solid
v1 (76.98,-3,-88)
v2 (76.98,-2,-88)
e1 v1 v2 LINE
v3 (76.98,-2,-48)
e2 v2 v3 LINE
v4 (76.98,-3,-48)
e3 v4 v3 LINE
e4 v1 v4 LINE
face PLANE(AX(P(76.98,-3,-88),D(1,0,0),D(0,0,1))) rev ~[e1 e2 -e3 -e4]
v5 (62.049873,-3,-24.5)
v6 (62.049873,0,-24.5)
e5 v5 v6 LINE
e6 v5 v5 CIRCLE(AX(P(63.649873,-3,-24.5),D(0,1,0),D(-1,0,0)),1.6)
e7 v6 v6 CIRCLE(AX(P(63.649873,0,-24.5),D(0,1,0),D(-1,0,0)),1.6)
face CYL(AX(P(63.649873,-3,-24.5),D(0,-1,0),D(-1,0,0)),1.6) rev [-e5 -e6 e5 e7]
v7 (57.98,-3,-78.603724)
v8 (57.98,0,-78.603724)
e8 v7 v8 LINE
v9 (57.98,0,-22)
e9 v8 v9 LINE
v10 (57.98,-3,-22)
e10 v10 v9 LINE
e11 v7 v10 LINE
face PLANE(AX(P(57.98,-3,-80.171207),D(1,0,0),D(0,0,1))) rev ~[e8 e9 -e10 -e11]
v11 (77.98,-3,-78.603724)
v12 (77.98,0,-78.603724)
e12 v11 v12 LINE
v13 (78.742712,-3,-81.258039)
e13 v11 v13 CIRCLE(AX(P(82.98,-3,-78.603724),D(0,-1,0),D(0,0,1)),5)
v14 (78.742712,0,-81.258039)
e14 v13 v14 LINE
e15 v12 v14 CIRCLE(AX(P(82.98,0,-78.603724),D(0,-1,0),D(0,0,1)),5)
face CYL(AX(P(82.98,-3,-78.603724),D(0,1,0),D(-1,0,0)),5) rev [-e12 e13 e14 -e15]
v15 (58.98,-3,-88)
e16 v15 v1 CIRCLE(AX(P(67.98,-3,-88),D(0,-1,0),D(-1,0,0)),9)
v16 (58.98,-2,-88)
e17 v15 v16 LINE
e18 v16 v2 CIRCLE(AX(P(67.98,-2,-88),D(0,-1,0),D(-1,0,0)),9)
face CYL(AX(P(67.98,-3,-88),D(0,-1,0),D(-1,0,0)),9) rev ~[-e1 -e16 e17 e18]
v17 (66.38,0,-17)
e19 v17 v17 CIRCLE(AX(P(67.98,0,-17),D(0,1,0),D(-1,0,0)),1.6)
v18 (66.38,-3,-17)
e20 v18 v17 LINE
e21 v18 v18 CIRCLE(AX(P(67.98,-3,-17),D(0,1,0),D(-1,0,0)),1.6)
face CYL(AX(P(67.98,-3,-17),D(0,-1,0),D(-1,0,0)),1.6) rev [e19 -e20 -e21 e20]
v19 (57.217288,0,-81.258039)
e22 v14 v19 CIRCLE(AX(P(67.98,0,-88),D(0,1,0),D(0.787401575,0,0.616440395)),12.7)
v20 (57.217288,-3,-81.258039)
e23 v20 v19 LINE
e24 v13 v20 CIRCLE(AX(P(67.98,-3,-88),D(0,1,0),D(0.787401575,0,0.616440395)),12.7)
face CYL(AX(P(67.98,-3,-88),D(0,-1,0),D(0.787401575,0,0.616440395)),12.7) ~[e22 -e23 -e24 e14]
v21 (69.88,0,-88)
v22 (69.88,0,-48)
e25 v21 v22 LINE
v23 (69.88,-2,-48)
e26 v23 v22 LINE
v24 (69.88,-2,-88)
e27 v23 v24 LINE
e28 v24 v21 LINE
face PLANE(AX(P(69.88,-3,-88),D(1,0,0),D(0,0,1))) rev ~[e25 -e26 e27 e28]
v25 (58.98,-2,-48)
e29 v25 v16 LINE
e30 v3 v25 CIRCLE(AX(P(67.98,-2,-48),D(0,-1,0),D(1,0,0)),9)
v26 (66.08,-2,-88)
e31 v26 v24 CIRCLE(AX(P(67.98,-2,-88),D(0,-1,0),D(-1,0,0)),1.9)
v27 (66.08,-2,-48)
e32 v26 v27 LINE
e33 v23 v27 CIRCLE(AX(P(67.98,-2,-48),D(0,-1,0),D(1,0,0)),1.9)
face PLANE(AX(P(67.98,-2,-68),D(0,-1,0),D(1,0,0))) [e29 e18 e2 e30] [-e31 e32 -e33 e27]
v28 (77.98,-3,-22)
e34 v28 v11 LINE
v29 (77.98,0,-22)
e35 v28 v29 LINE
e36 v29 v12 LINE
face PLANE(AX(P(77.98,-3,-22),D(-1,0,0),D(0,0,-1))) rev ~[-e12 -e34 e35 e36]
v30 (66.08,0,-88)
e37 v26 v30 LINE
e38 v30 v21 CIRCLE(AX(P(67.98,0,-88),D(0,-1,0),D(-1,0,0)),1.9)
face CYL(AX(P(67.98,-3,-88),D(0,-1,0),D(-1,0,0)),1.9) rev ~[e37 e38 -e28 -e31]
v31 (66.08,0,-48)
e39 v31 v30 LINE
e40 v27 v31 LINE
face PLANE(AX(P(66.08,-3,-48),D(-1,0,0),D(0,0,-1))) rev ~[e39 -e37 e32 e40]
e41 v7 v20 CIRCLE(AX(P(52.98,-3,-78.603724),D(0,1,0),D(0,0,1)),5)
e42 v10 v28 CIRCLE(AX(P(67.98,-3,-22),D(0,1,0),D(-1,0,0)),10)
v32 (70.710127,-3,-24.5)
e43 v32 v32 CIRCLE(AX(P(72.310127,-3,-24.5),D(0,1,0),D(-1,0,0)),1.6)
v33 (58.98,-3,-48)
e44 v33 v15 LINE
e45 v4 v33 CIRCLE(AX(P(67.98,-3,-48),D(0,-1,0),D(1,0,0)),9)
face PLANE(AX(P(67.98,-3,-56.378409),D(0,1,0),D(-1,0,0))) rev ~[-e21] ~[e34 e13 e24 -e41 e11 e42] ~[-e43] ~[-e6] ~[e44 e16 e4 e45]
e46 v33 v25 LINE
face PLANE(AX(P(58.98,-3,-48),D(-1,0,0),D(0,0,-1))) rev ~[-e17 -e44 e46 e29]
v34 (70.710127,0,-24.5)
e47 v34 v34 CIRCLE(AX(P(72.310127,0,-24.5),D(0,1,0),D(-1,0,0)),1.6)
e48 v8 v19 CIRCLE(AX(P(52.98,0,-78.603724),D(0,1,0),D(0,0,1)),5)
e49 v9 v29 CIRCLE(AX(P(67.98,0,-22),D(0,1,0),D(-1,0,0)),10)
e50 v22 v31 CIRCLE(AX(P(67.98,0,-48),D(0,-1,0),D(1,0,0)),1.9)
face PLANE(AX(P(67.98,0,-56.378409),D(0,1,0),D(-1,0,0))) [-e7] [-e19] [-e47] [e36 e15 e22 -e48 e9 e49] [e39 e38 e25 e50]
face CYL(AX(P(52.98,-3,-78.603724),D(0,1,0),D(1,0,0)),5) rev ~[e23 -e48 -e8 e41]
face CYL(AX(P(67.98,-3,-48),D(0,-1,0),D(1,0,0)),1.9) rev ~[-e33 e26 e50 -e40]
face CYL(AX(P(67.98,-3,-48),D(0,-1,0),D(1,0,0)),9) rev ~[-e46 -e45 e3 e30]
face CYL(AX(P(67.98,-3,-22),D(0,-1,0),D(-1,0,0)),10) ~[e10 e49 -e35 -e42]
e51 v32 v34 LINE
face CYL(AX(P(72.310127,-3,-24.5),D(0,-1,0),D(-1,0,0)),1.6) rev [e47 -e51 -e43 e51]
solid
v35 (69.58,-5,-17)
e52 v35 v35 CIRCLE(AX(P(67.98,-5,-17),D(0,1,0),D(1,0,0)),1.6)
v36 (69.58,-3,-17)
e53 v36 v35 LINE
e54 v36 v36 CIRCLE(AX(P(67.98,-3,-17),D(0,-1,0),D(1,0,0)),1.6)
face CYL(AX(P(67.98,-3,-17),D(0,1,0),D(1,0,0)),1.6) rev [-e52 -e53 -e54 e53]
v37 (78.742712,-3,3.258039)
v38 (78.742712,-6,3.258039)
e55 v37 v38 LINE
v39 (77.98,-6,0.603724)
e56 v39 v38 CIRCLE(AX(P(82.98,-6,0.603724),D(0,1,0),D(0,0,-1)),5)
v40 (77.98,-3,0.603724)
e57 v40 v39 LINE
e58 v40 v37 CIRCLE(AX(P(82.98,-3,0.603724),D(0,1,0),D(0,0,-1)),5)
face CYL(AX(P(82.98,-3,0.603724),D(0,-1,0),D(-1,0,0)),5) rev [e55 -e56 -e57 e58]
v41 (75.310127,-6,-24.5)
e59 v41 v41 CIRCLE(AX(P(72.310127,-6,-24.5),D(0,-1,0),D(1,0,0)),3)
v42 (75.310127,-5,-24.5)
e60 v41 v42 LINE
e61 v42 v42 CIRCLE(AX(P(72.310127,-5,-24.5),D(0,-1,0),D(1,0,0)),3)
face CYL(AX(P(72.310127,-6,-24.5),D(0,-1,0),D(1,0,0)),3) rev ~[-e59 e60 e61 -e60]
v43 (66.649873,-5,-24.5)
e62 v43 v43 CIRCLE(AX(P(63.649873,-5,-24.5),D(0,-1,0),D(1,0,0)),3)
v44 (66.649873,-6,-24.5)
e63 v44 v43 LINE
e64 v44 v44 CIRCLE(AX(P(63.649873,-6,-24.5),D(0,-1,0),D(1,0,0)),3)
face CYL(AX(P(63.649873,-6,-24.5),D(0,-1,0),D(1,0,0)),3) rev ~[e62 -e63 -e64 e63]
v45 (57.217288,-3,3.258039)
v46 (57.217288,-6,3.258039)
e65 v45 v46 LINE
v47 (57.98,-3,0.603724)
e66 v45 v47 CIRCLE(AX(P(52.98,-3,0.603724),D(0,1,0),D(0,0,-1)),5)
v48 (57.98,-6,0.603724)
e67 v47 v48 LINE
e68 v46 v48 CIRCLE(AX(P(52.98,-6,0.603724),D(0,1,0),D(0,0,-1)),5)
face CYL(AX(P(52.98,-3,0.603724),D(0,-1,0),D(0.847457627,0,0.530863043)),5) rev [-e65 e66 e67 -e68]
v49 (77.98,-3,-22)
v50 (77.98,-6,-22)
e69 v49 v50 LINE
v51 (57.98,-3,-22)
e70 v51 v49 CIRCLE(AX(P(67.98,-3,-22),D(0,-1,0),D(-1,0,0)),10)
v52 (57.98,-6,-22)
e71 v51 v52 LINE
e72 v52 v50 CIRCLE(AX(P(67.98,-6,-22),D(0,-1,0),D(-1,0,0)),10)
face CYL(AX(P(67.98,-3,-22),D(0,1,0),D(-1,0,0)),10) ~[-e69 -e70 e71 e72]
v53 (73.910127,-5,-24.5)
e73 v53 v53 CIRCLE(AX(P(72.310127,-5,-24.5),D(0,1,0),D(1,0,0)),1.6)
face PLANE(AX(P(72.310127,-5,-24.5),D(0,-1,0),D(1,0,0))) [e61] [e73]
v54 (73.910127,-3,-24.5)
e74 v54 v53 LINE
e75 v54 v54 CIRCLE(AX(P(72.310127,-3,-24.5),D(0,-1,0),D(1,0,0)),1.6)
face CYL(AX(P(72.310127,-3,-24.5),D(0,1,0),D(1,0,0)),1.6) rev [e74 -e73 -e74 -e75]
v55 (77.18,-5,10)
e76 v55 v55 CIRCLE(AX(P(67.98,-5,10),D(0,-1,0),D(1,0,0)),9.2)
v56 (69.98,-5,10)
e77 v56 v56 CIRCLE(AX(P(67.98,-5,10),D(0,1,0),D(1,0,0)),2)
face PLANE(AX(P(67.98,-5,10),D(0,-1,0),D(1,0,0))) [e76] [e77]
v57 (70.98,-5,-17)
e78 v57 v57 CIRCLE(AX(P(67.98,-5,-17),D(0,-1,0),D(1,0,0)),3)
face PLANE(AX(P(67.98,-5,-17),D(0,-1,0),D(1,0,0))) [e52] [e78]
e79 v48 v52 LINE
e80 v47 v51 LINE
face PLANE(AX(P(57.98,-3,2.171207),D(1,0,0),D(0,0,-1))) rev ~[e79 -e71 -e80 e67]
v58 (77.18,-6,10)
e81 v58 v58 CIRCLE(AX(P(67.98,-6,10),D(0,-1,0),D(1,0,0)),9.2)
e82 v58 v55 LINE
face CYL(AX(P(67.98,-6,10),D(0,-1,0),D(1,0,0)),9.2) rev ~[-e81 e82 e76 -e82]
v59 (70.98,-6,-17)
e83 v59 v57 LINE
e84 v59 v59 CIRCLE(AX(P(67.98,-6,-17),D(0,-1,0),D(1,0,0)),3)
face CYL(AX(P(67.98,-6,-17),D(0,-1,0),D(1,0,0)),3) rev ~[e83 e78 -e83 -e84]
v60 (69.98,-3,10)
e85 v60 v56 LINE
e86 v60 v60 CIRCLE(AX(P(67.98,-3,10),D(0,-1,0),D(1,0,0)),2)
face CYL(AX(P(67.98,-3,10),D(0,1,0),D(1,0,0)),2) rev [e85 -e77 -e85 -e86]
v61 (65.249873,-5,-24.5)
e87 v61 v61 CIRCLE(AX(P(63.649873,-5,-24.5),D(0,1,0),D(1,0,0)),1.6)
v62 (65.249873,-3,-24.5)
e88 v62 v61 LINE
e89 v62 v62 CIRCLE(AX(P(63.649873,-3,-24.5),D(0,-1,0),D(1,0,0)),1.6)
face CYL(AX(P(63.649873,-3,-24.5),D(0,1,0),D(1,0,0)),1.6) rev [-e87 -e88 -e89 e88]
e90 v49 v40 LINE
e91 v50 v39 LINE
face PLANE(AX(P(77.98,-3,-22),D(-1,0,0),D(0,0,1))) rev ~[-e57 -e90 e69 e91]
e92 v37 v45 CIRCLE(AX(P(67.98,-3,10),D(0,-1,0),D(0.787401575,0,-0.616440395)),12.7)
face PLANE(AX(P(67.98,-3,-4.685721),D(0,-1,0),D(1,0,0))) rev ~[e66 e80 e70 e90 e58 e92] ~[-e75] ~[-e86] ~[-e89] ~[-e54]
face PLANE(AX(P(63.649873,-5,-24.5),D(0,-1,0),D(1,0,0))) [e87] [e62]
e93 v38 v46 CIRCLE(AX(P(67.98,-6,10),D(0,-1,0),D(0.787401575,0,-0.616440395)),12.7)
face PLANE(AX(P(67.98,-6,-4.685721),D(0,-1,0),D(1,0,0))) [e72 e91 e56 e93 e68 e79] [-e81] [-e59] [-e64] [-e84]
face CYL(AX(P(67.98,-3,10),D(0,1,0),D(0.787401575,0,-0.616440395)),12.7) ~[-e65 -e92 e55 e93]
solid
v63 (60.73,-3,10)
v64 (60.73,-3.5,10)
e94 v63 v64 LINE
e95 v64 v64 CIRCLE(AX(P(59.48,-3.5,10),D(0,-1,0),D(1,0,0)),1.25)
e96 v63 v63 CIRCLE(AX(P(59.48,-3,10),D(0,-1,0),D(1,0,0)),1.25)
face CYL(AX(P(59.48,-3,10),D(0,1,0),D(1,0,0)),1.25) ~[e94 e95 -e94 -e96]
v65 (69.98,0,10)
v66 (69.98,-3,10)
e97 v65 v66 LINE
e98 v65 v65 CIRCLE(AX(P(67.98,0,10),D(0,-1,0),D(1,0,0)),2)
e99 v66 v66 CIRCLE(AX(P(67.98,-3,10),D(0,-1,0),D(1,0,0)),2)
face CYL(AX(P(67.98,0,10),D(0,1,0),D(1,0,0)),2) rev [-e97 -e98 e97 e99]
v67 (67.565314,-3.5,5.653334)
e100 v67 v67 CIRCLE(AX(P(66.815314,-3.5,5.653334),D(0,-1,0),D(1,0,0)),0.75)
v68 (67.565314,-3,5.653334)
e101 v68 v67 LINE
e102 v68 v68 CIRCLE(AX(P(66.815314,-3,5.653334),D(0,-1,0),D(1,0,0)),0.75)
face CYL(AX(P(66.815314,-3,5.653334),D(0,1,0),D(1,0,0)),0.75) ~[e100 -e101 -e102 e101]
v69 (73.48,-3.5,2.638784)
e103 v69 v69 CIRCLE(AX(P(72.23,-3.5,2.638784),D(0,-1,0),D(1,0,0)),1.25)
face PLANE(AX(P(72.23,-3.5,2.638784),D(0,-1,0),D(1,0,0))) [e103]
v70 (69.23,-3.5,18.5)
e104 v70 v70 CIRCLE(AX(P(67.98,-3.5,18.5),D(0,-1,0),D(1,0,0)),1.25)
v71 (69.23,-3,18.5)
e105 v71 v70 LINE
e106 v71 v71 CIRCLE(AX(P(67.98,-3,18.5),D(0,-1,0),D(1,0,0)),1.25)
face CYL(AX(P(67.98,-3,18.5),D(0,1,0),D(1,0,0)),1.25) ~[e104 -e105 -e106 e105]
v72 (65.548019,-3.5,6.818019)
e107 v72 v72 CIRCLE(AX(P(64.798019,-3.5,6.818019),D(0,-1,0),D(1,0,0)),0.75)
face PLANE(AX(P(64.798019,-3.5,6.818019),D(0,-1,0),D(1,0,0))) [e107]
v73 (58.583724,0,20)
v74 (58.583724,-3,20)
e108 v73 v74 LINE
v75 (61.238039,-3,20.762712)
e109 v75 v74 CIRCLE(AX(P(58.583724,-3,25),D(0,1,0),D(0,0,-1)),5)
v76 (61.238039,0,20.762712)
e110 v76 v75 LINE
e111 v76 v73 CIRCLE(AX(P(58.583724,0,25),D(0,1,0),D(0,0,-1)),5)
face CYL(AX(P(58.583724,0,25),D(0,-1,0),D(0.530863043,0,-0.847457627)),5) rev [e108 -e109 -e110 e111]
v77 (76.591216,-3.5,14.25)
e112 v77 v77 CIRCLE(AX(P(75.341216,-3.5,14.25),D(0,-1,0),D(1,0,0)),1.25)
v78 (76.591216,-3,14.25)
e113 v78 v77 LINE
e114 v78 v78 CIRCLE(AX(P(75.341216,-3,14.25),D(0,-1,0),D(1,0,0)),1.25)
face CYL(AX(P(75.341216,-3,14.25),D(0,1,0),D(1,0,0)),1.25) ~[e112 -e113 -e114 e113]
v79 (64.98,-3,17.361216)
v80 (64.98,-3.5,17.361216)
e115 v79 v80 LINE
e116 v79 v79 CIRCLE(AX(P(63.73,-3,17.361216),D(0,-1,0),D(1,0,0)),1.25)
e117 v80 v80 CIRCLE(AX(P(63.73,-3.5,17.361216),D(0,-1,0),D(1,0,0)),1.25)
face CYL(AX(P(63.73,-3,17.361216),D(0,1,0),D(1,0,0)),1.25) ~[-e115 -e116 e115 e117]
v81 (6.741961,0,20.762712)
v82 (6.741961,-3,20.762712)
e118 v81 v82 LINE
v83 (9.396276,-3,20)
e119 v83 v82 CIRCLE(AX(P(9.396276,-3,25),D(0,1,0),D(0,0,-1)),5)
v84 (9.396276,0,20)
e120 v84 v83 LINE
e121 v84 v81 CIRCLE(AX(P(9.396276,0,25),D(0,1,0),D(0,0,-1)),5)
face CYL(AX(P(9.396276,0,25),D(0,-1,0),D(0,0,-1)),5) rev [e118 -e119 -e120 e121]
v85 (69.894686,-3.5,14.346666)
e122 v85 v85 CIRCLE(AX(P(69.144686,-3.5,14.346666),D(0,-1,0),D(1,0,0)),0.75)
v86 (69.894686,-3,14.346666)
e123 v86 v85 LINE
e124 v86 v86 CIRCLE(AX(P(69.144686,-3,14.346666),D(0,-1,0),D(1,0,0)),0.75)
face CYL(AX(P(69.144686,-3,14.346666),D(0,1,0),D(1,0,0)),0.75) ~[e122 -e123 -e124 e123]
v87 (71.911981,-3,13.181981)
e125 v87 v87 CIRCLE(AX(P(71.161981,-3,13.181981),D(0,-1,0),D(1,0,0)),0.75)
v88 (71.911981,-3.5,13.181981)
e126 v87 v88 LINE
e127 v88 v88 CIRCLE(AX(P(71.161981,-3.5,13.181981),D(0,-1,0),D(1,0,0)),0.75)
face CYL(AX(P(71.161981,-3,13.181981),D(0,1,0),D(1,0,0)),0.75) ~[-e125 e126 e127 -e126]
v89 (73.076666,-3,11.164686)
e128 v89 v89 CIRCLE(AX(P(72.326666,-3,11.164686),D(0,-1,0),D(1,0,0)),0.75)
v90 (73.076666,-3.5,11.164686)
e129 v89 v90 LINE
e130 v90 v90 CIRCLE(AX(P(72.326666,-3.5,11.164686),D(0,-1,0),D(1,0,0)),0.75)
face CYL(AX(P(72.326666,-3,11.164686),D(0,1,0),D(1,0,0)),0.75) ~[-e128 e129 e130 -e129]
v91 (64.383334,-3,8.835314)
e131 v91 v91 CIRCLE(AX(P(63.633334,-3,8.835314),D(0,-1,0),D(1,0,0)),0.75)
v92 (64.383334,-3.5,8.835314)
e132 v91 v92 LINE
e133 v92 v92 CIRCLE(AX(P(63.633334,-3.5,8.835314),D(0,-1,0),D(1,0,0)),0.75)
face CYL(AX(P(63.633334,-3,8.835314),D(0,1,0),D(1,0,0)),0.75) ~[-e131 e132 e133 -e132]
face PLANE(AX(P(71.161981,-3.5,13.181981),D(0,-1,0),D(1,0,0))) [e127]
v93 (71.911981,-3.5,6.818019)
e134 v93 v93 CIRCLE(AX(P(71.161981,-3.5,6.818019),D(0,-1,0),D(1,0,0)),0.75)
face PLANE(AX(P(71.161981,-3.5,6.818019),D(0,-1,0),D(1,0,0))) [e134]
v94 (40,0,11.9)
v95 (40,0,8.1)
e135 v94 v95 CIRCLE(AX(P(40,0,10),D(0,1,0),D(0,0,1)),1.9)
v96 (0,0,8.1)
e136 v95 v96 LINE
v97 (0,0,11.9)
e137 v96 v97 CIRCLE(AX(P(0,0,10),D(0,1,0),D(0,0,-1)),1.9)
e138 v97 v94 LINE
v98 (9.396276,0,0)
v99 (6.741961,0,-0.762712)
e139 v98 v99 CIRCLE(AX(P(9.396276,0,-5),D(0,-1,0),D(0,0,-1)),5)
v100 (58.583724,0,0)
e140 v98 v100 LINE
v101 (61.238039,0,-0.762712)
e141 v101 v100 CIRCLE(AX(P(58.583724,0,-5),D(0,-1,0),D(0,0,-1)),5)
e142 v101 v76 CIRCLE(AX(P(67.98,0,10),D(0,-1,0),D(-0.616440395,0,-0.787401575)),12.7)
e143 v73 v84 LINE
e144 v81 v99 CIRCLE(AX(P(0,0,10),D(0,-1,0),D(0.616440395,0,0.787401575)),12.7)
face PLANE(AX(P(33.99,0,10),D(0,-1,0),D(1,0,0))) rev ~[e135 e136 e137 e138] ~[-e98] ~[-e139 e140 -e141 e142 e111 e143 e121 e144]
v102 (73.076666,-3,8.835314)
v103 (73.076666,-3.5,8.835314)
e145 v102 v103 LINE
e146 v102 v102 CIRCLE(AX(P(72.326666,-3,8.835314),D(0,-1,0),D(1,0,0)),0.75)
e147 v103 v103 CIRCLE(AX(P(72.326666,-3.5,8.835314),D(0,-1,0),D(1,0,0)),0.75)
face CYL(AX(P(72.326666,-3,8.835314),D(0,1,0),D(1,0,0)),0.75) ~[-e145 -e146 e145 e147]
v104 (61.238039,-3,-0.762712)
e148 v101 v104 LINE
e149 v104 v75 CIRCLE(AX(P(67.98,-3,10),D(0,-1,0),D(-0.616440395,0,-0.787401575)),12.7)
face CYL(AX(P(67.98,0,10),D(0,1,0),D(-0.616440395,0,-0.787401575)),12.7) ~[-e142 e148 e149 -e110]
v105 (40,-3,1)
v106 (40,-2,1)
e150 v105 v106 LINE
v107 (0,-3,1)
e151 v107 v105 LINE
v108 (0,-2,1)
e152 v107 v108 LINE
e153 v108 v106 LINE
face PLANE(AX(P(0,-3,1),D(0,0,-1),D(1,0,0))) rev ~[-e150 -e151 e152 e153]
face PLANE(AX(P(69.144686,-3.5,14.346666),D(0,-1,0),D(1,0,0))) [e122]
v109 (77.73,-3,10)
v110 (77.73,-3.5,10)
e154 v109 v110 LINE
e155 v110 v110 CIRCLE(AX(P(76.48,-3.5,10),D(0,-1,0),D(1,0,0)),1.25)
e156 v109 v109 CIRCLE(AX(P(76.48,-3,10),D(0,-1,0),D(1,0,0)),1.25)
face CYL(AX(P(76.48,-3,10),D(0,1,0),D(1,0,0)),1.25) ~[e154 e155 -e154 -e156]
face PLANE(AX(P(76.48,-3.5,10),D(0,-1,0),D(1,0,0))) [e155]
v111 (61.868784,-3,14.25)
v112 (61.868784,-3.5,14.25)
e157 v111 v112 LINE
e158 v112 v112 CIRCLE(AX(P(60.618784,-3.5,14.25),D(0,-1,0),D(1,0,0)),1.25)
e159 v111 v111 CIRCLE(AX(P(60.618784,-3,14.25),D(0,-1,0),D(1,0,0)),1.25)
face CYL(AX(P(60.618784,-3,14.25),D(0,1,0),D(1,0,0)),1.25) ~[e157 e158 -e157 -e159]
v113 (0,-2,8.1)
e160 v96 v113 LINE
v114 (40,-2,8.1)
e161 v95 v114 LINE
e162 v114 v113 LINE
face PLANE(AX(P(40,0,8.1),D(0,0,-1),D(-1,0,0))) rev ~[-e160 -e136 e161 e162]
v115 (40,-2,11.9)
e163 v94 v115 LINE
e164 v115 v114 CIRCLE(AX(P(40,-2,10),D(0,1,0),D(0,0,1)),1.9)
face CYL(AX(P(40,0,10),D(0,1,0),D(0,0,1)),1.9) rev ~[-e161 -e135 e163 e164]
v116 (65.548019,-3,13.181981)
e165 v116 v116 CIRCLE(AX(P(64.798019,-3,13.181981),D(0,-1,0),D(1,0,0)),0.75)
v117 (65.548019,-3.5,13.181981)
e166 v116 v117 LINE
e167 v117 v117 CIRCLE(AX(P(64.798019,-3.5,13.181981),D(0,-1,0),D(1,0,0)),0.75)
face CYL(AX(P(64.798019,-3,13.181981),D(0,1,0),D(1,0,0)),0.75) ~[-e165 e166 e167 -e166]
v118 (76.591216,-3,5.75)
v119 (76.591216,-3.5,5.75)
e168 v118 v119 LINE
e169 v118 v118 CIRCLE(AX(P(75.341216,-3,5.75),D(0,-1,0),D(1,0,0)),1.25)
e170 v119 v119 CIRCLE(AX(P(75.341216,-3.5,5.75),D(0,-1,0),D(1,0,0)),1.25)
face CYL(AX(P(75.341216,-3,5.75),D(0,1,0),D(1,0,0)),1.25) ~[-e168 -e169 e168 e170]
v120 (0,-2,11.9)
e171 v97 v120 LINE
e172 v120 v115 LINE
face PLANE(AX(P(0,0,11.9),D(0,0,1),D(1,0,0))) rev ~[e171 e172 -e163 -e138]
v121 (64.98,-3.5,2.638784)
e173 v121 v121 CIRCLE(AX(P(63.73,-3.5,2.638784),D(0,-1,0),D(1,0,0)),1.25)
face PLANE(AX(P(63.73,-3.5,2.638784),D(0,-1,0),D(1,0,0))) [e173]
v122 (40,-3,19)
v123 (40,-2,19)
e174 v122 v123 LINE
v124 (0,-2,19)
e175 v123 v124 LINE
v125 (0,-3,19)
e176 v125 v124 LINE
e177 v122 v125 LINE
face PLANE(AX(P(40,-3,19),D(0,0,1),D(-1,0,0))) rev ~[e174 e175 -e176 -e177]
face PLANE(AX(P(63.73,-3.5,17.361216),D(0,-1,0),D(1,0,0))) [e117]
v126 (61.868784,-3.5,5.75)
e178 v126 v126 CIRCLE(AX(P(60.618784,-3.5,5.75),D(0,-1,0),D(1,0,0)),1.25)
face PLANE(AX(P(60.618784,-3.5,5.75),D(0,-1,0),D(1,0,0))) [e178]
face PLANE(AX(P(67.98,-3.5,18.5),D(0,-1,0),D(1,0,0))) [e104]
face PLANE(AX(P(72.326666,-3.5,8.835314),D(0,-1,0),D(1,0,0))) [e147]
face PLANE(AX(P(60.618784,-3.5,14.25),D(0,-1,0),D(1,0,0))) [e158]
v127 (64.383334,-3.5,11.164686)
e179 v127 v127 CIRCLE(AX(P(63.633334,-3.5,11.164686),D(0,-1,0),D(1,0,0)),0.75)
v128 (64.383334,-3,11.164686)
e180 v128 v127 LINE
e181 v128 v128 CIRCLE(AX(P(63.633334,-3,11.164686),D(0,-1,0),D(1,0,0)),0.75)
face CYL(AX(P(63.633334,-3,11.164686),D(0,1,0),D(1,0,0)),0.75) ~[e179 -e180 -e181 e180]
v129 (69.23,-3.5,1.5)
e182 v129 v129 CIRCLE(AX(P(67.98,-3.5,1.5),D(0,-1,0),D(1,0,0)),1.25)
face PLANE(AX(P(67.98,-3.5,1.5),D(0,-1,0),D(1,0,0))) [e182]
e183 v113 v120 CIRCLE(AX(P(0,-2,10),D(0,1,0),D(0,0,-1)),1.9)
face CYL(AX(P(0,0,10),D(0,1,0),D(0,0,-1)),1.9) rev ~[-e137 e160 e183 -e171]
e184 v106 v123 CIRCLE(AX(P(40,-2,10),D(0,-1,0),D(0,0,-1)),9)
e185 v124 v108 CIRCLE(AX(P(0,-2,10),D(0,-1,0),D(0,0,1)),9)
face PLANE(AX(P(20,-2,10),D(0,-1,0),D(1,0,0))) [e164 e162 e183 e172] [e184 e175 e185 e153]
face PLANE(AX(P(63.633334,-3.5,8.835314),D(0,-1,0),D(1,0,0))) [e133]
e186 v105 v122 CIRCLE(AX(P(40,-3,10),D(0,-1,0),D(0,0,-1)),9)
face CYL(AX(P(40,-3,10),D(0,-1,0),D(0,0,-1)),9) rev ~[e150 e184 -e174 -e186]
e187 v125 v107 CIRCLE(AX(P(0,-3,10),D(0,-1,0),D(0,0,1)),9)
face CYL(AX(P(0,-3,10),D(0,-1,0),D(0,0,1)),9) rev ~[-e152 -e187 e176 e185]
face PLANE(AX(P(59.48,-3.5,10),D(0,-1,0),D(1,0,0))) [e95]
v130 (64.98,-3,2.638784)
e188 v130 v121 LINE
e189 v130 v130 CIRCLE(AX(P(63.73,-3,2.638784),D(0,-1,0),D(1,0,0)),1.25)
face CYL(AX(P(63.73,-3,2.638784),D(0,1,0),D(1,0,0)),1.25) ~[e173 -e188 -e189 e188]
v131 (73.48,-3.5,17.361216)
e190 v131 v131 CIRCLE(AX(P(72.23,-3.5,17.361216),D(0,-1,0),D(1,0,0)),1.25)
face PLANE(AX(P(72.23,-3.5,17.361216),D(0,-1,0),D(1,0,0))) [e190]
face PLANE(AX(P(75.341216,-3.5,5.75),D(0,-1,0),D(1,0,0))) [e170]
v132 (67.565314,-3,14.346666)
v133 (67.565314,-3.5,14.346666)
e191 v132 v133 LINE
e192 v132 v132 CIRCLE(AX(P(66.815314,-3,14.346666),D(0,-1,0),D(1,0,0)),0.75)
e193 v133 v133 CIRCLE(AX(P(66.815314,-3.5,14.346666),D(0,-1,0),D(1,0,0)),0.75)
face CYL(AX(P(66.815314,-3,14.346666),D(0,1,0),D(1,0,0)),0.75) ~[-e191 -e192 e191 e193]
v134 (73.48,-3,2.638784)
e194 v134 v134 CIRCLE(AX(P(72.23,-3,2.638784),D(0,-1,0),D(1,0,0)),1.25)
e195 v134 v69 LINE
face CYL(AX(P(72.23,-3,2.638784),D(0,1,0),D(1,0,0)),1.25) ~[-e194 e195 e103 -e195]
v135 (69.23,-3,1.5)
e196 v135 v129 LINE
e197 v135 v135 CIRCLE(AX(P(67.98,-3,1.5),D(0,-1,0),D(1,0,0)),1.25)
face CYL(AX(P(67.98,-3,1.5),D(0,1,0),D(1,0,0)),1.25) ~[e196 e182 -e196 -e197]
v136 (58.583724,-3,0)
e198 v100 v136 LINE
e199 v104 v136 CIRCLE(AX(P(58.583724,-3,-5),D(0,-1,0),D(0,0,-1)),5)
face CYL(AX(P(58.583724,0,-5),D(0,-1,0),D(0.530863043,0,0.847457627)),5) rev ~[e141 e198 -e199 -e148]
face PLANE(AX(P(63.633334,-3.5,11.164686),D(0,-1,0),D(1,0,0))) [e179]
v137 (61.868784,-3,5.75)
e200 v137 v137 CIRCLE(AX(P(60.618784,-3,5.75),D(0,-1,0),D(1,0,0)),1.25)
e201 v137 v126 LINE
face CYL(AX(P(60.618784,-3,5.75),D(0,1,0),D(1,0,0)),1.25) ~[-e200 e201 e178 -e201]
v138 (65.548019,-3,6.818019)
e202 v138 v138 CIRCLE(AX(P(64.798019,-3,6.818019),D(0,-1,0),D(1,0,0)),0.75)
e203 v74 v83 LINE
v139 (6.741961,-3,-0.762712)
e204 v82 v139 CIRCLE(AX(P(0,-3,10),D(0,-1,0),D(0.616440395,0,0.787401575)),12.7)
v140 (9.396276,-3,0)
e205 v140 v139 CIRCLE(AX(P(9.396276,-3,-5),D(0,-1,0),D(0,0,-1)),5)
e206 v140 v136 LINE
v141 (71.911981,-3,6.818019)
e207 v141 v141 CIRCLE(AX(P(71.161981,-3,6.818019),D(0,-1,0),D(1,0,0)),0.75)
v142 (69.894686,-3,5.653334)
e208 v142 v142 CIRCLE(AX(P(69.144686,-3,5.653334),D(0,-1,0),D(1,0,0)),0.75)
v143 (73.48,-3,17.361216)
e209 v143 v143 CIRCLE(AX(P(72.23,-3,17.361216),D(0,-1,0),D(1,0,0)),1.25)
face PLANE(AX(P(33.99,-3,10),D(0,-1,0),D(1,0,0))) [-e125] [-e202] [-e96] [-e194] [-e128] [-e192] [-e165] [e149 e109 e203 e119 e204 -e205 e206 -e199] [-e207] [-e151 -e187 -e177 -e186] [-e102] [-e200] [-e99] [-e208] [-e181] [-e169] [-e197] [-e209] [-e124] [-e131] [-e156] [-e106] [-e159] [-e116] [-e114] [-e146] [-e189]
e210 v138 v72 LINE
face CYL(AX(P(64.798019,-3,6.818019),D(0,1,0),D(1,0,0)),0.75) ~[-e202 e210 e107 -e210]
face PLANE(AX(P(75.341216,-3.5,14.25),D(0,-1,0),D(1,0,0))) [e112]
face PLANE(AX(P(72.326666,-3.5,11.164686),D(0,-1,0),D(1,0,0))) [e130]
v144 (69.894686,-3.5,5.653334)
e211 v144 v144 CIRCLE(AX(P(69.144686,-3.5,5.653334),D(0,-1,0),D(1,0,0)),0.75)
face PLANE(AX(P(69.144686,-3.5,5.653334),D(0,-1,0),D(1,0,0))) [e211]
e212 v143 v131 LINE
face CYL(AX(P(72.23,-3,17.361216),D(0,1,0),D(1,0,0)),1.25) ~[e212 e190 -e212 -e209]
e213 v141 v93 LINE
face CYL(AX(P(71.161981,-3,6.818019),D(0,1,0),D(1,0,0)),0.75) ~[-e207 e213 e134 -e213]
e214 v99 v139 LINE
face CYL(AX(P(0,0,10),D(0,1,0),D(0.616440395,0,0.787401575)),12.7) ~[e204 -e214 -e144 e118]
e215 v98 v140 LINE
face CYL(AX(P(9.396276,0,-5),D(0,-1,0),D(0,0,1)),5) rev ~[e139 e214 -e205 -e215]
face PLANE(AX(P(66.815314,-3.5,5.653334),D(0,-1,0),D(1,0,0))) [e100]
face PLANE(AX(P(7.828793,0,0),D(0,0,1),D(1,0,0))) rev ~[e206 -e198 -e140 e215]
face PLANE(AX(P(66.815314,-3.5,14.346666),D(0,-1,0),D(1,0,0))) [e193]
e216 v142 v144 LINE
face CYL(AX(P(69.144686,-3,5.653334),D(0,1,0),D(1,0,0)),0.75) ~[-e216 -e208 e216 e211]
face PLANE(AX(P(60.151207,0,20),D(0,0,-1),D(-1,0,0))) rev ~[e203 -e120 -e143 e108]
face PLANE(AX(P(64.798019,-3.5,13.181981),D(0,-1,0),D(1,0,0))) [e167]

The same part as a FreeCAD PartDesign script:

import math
import FreeCAD as App
import Part
import Sketcher


def edges_at(feature, points):
    """Names of the edges that pass closest to the given points."""
    edges = feature.Shape.Edges
    near = lambda p: min(range(len(edges)), key=lambda i: edges[i].distToShape(Part.Vertex(*p))[0])
    return sorted({f"Edge{near(p) + 1}" for p in points})

doc = App.newDocument("Part")
params = doc.addObject("Spreadsheet::Sheet", "Params")
for row, (alias, value) in enumerate([
    ("sketch1_diameter", "4 mm"),
    ("sketch1_radius", "12.7 mm"),
    ("sketch1_radius2", "1.9 mm"),
    ("sketch1_width", "40 mm"),
    ("pad1_length", "3 mm"),
    ("sketch2_radius", "9 mm"),
    ("sketch2_radius2", "1.9 mm"),
    ("sketch2_width", "40 mm"),
    ("pocket1_length", "1 mm"),
    ("fillet_radius", "5 mm"),
    ("sketch3_diameter", "2.5 mm"),
    ("sketch3_diameter2", "1.5 mm"),
    ("pad2_length", "0.5 mm"),
    ("sketch4_diameter", "4 mm"),
    ("sketch4_radius", "10 mm"),
    ("sketch4_diameter2", "3.2 mm"),
    ("sketch4_radius2", "12.7 mm"),
    ("pad3_length", "3 mm"),
    ("sketch5_diameter", "6 mm"),
    ("sketch5_diameter2", "18.4 mm"),
    ("pocket2_length", "1 mm"),
    ("fillet2_radius", "5 mm"),
    ("sketch6_radius", "10 mm"),
    ("sketch6_diameter", "3.2 mm"),
    ("sketch6_radius2", "12.7 mm"),
    ("sketch6_radius3", "1.9 mm"),
    ("sketch6_height", "40 mm"),
    ("pad4_length", "3 mm"),
    ("sketch7_radius", "9 mm"),
    ("sketch7_height", "40 mm"),
    ("pocket3_length", "1 mm"),
    ("fillet3_radius", "5 mm"),
], start=1):
    params.set(f"A{row}", alias)
    params.set(f"B{row}", "=" + value)
    params.setAlias(f"B{row}", alias)

body = doc.addObject("PartDesign::Body", "Body")

sketch1 = body.newObject("Sketcher::SketchObject", "Sketch")
sketch1.AttachmentSupport = (doc.getObject("XZ_Plane"), [""])
sketch1.MapMode = "FlatFace"
sketch1.addGeometry([
    Part.ArcOfCircle(Part.Circle(App.Vector(68, 10, 0), App.Vector(0, 0, 1), 12.7), math.radians(-128), math.radians(128)),
    Part.LineSegment(App.Vector(60.2, 20, 0), App.Vector(7.8, 20, 0)),
    Part.ArcOfCircle(Part.Circle(App.Vector(0, 10, 0), App.Vector(0, 0, 1), 12.7), math.radians(52), math.radians(308)),
    Part.LineSegment(App.Vector(7.8, 0, 0), App.Vector(60.2, 0, 0)),
    Part.LineSegment(App.Vector(40, 8.1, 0), App.Vector(0, 8.1, 0)),
    Part.ArcOfCircle(Part.Circle(App.Vector(0, 10, 0), App.Vector(0, 0, 1), 1.9), math.radians(90), math.radians(270)),
    Part.LineSegment(App.Vector(0, 11.9, 0), App.Vector(40, 11.9, 0)),
    Part.ArcOfCircle(Part.Circle(App.Vector(40, 10, 0), App.Vector(0, 0, 1), 1.9), math.radians(-90), math.radians(90)),
    Part.Circle(App.Vector(68, 10, 0), App.Vector(0, 0, 1), 2),
], False)
sketch1.addConstraint([
    Sketcher.Constraint("Coincident", 0, 2, 1, 1),
    Sketcher.Constraint("Coincident", 1, 2, 2, 1),
    Sketcher.Constraint("Coincident", 2, 2, 3, 1),
    Sketcher.Constraint("Coincident", 3, 2, 0, 1),
    Sketcher.Constraint("Tangent", 4, 2, 5, 2),
    Sketcher.Constraint("Tangent", 5, 1, 6, 1),
    Sketcher.Constraint("Tangent", 6, 2, 7, 2),
    Sketcher.Constraint("Tangent", 7, 1, 4, 1),
    Sketcher.Constraint("Horizontal", 1),
    Sketcher.Constraint("Horizontal", 3),
    Sketcher.Constraint("Horizontal", 4),
    Sketcher.Constraint("Horizontal", 6),
    Sketcher.Constraint("Coincident", 5, 3, 2, 3),
    Sketcher.Constraint("Coincident", 8, 3, 0, 3),
    Sketcher.Constraint("Equal", 0, 2),
    Sketcher.Constraint("PointOnObject", 2, 3, -2),
    Sketcher.Constraint("PointOnObject", 2, 2, -1),
    Sketcher.Constraint("Horizontal", 0, 3, 2, 3),
    Sketcher.Constraint("Vertical", 1, 2, 2, 2),
    Sketcher.Constraint("Diameter", 8, 4.0),
    Sketcher.Constraint("Radius", 0, 12.7),
    Sketcher.Constraint("Radius", 5, 1.9),
    Sketcher.Constraint("DistanceX", 4, 2, 4, 1, 40.0),
    Sketcher.Constraint("DistanceY", -1, 1, 0, 3, 10.0),
    Sketcher.Constraint("DistanceX", -1, 1, 0, 3, 67.98),
])
sketch1.setExpression("Constraints[19]", "Params.sketch1_diameter")
sketch1.setExpression("Constraints[20]", "Params.sketch1_radius")
sketch1.setExpression("Constraints[21]", "Params.sketch1_radius2")
sketch1.setExpression("Constraints[22]", "Params.sketch1_width")
pad1 = body.newObject("PartDesign::Pad", "Pad")
pad1.Profile = sketch1
pad1.setExpression("Length", "Params.pad1_length")

sketch2 = body.newObject("Sketcher::SketchObject", "Sketch001")
sketch2.AttachmentSupport = (doc.getObject("XZ_Plane"), [""])
sketch2.MapMode = "FlatFace"
sketch2.AttachmentOffset = App.Placement(App.Vector(0, 0, 3), App.Rotation())
sketch2.addGeometry([
    Part.ArcOfCircle(Part.Circle(App.Vector(40, 10, 0), App.Vector(0, 0, 1), 9), math.radians(-90), math.radians(90)),
    Part.LineSegment(App.Vector(40, 19, 0), App.Vector(0, 19, 0)),
    Part.ArcOfCircle(Part.Circle(App.Vector(0, 10, 0), App.Vector(0, 0, 1), 9), math.radians(90), math.radians(270)),
    Part.LineSegment(App.Vector(0, 1, 0), App.Vector(40, 1, 0)),
    Part.LineSegment(App.Vector(40, 8.1, 0), App.Vector(0, 8.1, 0)),
    Part.ArcOfCircle(Part.Circle(App.Vector(0, 10, 0), App.Vector(0, 0, 1), 1.9), math.radians(90), math.radians(270)),
    Part.LineSegment(App.Vector(0, 11.9, 0), App.Vector(40, 11.9, 0)),
    Part.ArcOfCircle(Part.Circle(App.Vector(40, 10, 0), App.Vector(0, 0, 1), 1.9), math.radians(-90), math.radians(90)),
], False)
sketch2.addConstraint([
    Sketcher.Constraint("Tangent", 0, 2, 1, 1),
    Sketcher.Constraint("Tangent", 1, 2, 2, 1),
    Sketcher.Constraint("Tangent", 2, 2, 3, 1),
    Sketcher.Constraint("Tangent", 3, 2, 0, 1),
    Sketcher.Constraint("Tangent", 4, 2, 5, 2),
    Sketcher.Constraint("Tangent", 5, 1, 6, 1),
    Sketcher.Constraint("Tangent", 6, 2, 7, 2),
    Sketcher.Constraint("Tangent", 7, 1, 4, 1),
    Sketcher.Constraint("Horizontal", 1),
    Sketcher.Constraint("Horizontal", 3),
    Sketcher.Constraint("Horizontal", 4),
    Sketcher.Constraint("Horizontal", 6),
    Sketcher.Constraint("Coincident", 5, 3, 2, 3),
    Sketcher.Constraint("PointOnObject", 2, 3, -2),
    Sketcher.Constraint("Vertical", 7, 3, 0, 2),
    Sketcher.Constraint("Radius", 0, 9.0),
    Sketcher.Constraint("Radius", 5, 1.9),
    Sketcher.Constraint("DistanceX", 1, 2, 1, 1, 40.0),
    Sketcher.Constraint("DistanceY", -1, 1, 0, 3, 10.0),
])
sketch2.setExpression("Constraints[15]", "Params.sketch2_radius")
sketch2.setExpression("Constraints[16]", "Params.sketch2_radius2")
sketch2.setExpression("Constraints[17]", "Params.sketch2_width")
pocket1 = body.newObject("PartDesign::Pocket", "Pocket")
pocket1.Profile = sketch2
pocket1.setExpression("Length", "Params.pocket1_length")
doc.recompute()

fillet = body.newObject("PartDesign::Fillet", "Fillet")
fillet.Base = (pocket1, edges_at(pocket1, [
    (7.829, -1.5, 20),
    (7.829, -1.5, 0),
    (60.151, -1.5, 0),
    (60.151, -1.5, 20),
]))
fillet.setExpression("Radius", "Params.fillet_radius")

sketch3 = body.newObject("Sketcher::SketchObject", "Sketch002")
sketch3.AttachmentSupport = (doc.getObject("XZ_Plane"), [""])
sketch3.MapMode = "FlatFace"
sketch3.AttachmentOffset = App.Placement(App.Vector(0, 0, 3), App.Rotation())
sketch3.addGeometry([
    Part.Circle(App.Vector(68, 18.5, 0), App.Vector(0, 0, 1), 1.2),
    Part.Circle(App.Vector(63.7, 17.4, 0), App.Vector(0, 0, 1), 1.2),
    Part.Circle(App.Vector(60.6, 14.2, 0), App.Vector(0, 0, 1), 1.2),
    Part.Circle(App.Vector(59.5, 10, 0), App.Vector(0, 0, 1), 1.2),
    Part.Circle(App.Vector(60.6, 5.8, 0), App.Vector(0, 0, 1), 1.2),
    Part.Circle(App.Vector(63.7, 2.6, 0), App.Vector(0, 0, 1), 1.2),
    Part.Circle(App.Vector(68, 1.5, 0), App.Vector(0, 0, 1), 1.2),
    Part.Circle(App.Vector(72.2, 2.6, 0), App.Vector(0, 0, 1), 1.2),
    Part.Circle(App.Vector(75.3, 5.8, 0), App.Vector(0, 0, 1), 1.2),
    Part.Circle(App.Vector(76.5, 10, 0), App.Vector(0, 0, 1), 1.2),
    Part.Circle(App.Vector(75.3, 14.2, 0), App.Vector(0, 0, 1), 1.2),
    Part.Circle(App.Vector(72.2, 17.4, 0), App.Vector(0, 0, 1), 1.2),
    Part.Circle(App.Vector(69.1, 14.3, 0), App.Vector(0, 0, 1), 0.8),
    Part.Circle(App.Vector(66.8, 14.3, 0), App.Vector(0, 0, 1), 0.8),
    Part.Circle(App.Vector(64.8, 13.2, 0), App.Vector(0, 0, 1), 0.8),
    Part.Circle(App.Vector(63.6, 11.2, 0), App.Vector(0, 0, 1), 0.8),
    Part.Circle(App.Vector(63.6, 8.8, 0), App.Vector(0, 0, 1), 0.8),
    Part.Circle(App.Vector(64.8, 6.8, 0), App.Vector(0, 0, 1), 0.8),
    Part.Circle(App.Vector(66.8, 5.7, 0), App.Vector(0, 0, 1), 0.8),
    Part.Circle(App.Vector(69.1, 5.7, 0), App.Vector(0, 0, 1), 0.8),
    Part.Circle(App.Vector(71.2, 6.8, 0), App.Vector(0, 0, 1), 0.8),
    Part.Circle(App.Vector(72.3, 8.8, 0), App.Vector(0, 0, 1), 0.8),
    Part.Circle(App.Vector(72.3, 11.2, 0), App.Vector(0, 0, 1), 0.8),
    Part.Circle(App.Vector(71.2, 13.2, 0), App.Vector(0, 0, 1), 0.8),
], False)
sketch3.addConstraint([
    Sketcher.Constraint("Equal", 0, 1),
    Sketcher.Constraint("Equal", 1, 2),
    Sketcher.Constraint("Equal", 2, 3),
    Sketcher.Constraint("Equal", 3, 4),
    Sketcher.Constraint("Equal", 4, 5),
    Sketcher.Constraint("Equal", 5, 6),
    Sketcher.Constraint("Equal", 6, 7),
    Sketcher.Constraint("Equal", 7, 8),
    Sketcher.Constraint("Equal", 8, 9),
    Sketcher.Constraint("Equal", 9, 10),
    Sketcher.Constraint("Equal", 10, 11),
    Sketcher.Constraint("Equal", 12, 13),
    Sketcher.Constraint("Equal", 13, 14),
    Sketcher.Constraint("Equal", 14, 15),
    Sketcher.Constraint("Equal", 15, 16),
    Sketcher.Constraint("Equal", 16, 17),
    Sketcher.Constraint("Equal", 17, 18),
    Sketcher.Constraint("Equal", 18, 19),
    Sketcher.Constraint("Equal", 19, 20),
    Sketcher.Constraint("Equal", 20, 21),
    Sketcher.Constraint("Equal", 21, 22),
    Sketcher.Constraint("Equal", 22, 23),
    Sketcher.Constraint("Horizontal", 5, 3, 7, 3),
    Sketcher.Constraint("Horizontal", 4, 3, 8, 3),
    Sketcher.Constraint("Horizontal", 3, 3, 9, 3),
    Sketcher.Constraint("Horizontal", 2, 3, 10, 3),
    Sketcher.Constraint("Horizontal", 1, 3, 11, 3),
    Sketcher.Constraint("Horizontal", 12, 3, 13, 3),
    Sketcher.Constraint("Horizontal", 18, 3, 19, 3),
    Sketcher.Constraint("Horizontal", 17, 3, 20, 3),
    Sketcher.Constraint("Horizontal", 16, 3, 21, 3),
    Sketcher.Constraint("Horizontal", 15, 3, 22, 3),
    Sketcher.Constraint("Horizontal", 14, 3, 23, 3),
    Sketcher.Constraint("Vertical", 2, 3, 4, 3),
    Sketcher.Constraint("Vertical", 1, 3, 5, 3),
    Sketcher.Constraint("Vertical", 0, 3, 6, 3),
    Sketcher.Constraint("Vertical", 8, 3, 10, 3),
    Sketcher.Constraint("Vertical", 7, 3, 11, 3),
    Sketcher.Constraint("Vertical", 15, 3, 16, 3),
    Sketcher.Constraint("Vertical", 14, 3, 17, 3),
    Sketcher.Constraint("Vertical", 13, 3, 18, 3),
    Sketcher.Constraint("Vertical", 12, 3, 19, 3),
    Sketcher.Constraint("Vertical", 21, 3, 22, 3),
    Sketcher.Constraint("Vertical", 20, 3, 23, 3),
    Sketcher.Constraint("Diameter", 0, 2.5),
    Sketcher.Constraint("Diameter", 12, 1.5),
    Sketcher.Constraint("DistanceY", -1, 1, 3, 3, 10.0),
    Sketcher.Constraint("DistanceY", -1, 1, 0, 3, 18.5),
    Sketcher.Constraint("DistanceY", -1, 1, 6, 3, 1.5),
    Sketcher.Constraint("DistanceX", 3, 3, 0, 3, 8.5),
    Sketcher.Constraint("DistanceY", 4, 3, 2, 3, 8.5),
    Sketcher.Constraint("DistanceX", 5, 3, 7, 3, 8.5),
    Sketcher.Constraint("DistanceX", 0, 3, 9, 3, 8.5),
    Sketcher.Constraint("DistanceX", -1, 1, 0, 3, 67.98),
    Sketcher.Constraint("DistanceX", -1, 1, 1, 3, 63.73),
    Sketcher.Constraint("DistanceY", -1, 1, 2, 3, 14.25),
    Sketcher.Constraint("DistanceX", -1, 1, 14, 3, 64.798019),
    Sketcher.Constraint("DistanceY", -1, 1, 14, 3, 13.181981),
    Sketcher.Constraint("DistanceY", -1, 1, 17, 3, 6.818019),
    Sketcher.Constraint("DistanceX", -1, 1, 20, 3, 71.161981),
    Sketcher.Constraint("DistanceY", 5, 3, 1, 3, 14.722432),
    Sketcher.Constraint("DistanceX", 4, 3, 8, 3, 14.722432),
    Sketcher.Constraint("DistanceY", 12, 3, 11, 3, 3.01455),
    Sketcher.Constraint("DistanceX", 12, 3, 10, 3, 6.19653),
    Sketcher.Constraint("DistanceX", 13, 3, 12, 3, 2.329371),
    Sketcher.Constraint("DistanceX", 2, 3, 15, 3, 3.01455),
    Sketcher.Constraint("DistanceY", 15, 3, 13, 3, 3.181981),
    Sketcher.Constraint("DistanceY", 16, 3, 15, 3, 2.329371),
    Sketcher.Constraint("DistanceY", 5, 3, 18, 3, 3.01455),
    Sketcher.Constraint("DistanceX", 21, 3, 8, 3, 3.01455),
    Sketcher.Constraint("DistanceY", -1, 1, 1, 3, 17.361216),
    Sketcher.Constraint("DistanceX", -1, 1, 2, 3, 60.618784),
])
sketch3.setExpression("Constraints[44]", "Params.sketch3_diameter")
sketch3.setExpression("Constraints[45]", "Params.sketch3_diameter2")
pad2 = body.newObject("PartDesign::Pad", "Pad001")
pad2.Profile = sketch3
pad2.setExpression("Length", "Params.pad2_length")
body2 = doc.addObject("PartDesign::Body", "Body001")

sketch4 = body2.newObject("Sketcher::SketchObject", "Sketch003")
sketch4.AttachmentSupport = (doc.getObject("XZ_Plane001"), [""])
sketch4.MapMode = "FlatFace"
sketch4.AttachmentOffset = App.Placement(App.Vector(0, 0, 3), App.Rotation())
sketch4.addGeometry([
    Part.LineSegment(App.Vector(78, -22, 0), App.Vector(78, 2.2, 0)),
    Part.ArcOfCircle(Part.Circle(App.Vector(68, 10, 0), App.Vector(0, 0, 1), 12.7), math.radians(-38), math.radians(218)),
    Part.LineSegment(App.Vector(58, 2.2, 0), App.Vector(58, -22, 0)),
    Part.ArcOfCircle(Part.Circle(App.Vector(68, -22, 0), App.Vector(0, 0, 1), 10), math.radians(180), math.radians(360)),
    Part.Circle(App.Vector(63.6, -24.5, 0), App.Vector(0, 0, 1), 1.6),
    Part.Circle(App.Vector(68, -17, 0), App.Vector(0, 0, 1), 1.6),
    Part.Circle(App.Vector(72.3, -24.5, 0), App.Vector(0, 0, 1), 1.6),
    Part.Circle(App.Vector(68, 10, 0), App.Vector(0, 0, 1), 2),
], False)
sketch4.addConstraint([
    Sketcher.Constraint("Coincident", 0, 2, 1, 1),
    Sketcher.Constraint("Coincident", 1, 2, 2, 1),
    Sketcher.Constraint("Tangent", 2, 2, 3, 1),
    Sketcher.Constraint("Tangent", 3, 2, 0, 1),
    Sketcher.Constraint("Vertical", 0),
    Sketcher.Constraint("Vertical", 2),
    Sketcher.Constraint("Coincident", 7, 3, 1, 3),
    Sketcher.Constraint("Equal", 4, 5),
    Sketcher.Constraint("Equal", 5, 6),
    Sketcher.Constraint("Horizontal", 4, 3, 6, 3),
    Sketcher.Constraint("Horizontal", 0, 2, 1, 2),
    Sketcher.Constraint("Vertical", 3, 3, 5, 3),
    Sketcher.Constraint("Diameter", 7, 4.0),
    Sketcher.Constraint("Radius", 3, 10.0),
    Sketcher.Constraint("Diameter", 4, 3.2),
    Sketcher.Constraint("Radius", 1, 12.7),
    Sketcher.Constraint("DistanceY", -1, 1, 1, 3, 10.0),
    Sketcher.Constraint("DistanceY", 3, 3, -1, 1, 22.0),
    Sketcher.Constraint("DistanceY", 5, 3, -1, 1, 17.0),
    Sketcher.Constraint("DistanceY", 4, 3, -1, 1, 24.5),
    Sketcher.Constraint("DistanceX", -1, 1, 1, 3, 67.98),
    Sketcher.Constraint("DistanceX", -1, 1, 4, 3, 63.649873),
    Sketcher.Constraint("DistanceX", -1, 1, 6, 3, 72.310127),
])
sketch4.setExpression("Constraints[12]", "Params.sketch4_diameter")
sketch4.setExpression("Constraints[13]", "Params.sketch4_radius")
sketch4.setExpression("Constraints[14]", "Params.sketch4_diameter2")
sketch4.setExpression("Constraints[15]", "Params.sketch4_radius2")
pad3 = body2.newObject("PartDesign::Pad", "Pad002")
pad3.Profile = sketch4
pad3.setExpression("Length", "Params.pad3_length")

sketch5 = body2.newObject("Sketcher::SketchObject", "Sketch004")
sketch5.AttachmentSupport = (doc.getObject("XZ_Plane001"), [""])
sketch5.MapMode = "FlatFace"
sketch5.AttachmentOffset = App.Placement(App.Vector(0, 0, 6), App.Rotation())
sketch5.addGeometry([
    Part.Circle(App.Vector(68, -17, 0), App.Vector(0, 0, 1), 3),
    Part.Circle(App.Vector(63.6, -24.5, 0), App.Vector(0, 0, 1), 3),
    Part.Circle(App.Vector(72.3, -24.5, 0), App.Vector(0, 0, 1), 3),
    Part.Circle(App.Vector(68, 10, 0), App.Vector(0, 0, 1), 9.2),
], False)
sketch5.addConstraint([
    Sketcher.Constraint("Equal", 0, 1),
    Sketcher.Constraint("Equal", 1, 2),
    Sketcher.Constraint("Horizontal", 1, 3, 2, 3),
    Sketcher.Constraint("Vertical", 0, 3, 3, 3),
    Sketcher.Constraint("Diameter", 0, 6.0),
    Sketcher.Constraint("Diameter", 3, 18.4),
    Sketcher.Constraint("DistanceY", 0, 3, -1, 1, 17.0),
    Sketcher.Constraint("DistanceY", -1, 1, 3, 3, 10.0),
    Sketcher.Constraint("DistanceY", 1, 3, -1, 1, 24.5),
    Sketcher.Constraint("DistanceX", -1, 1, 0, 3, 67.98),
    Sketcher.Constraint("DistanceX", -1, 1, 1, 3, 63.649873),
    Sketcher.Constraint("DistanceX", -1, 1, 2, 3, 72.310127),
])
sketch5.setExpression("Constraints[4]", "Params.sketch5_diameter")
sketch5.setExpression("Constraints[5]", "Params.sketch5_diameter2")
pocket2 = body2.newObject("PartDesign::Pocket", "Pocket001")
pocket2.Profile = sketch5
pocket2.setExpression("Length", "Params.pocket2_length")
doc.recompute()

fillet2 = body2.newObject("PartDesign::Fillet", "Fillet001")
fillet2.Base = (pocket2, edges_at(pocket2, [(57.98, -4.5, 2.171), (77.98, -4.5, 2.171)]))
fillet2.setExpression("Radius", "Params.fillet2_radius")
body3 = doc.addObject("PartDesign::Body", "Body002")

sketch6 = body3.newObject("Sketcher::SketchObject", "Sketch005")
sketch6.AttachmentSupport = (doc.getObject("XZ_Plane002"), [""])
sketch6.MapMode = "FlatFace"
sketch6.AttachmentOffset = App.Placement(App.Vector(0, 0, 3), App.Rotation())
sketch6.addGeometry([
    Part.ArcOfCircle(Part.Circle(App.Vector(68, -22, 0), App.Vector(0, 0, 1), 10), math.radians(0), math.radians(180)),
    Part.LineSegment(App.Vector(78, -22, 0), App.Vector(78, -80.2, 0)),
    Part.ArcOfCircle(Part.Circle(App.Vector(68, -88, 0), App.Vector(0, 0, 1), 12.7), math.radians(142), math.radians(398)),
    Part.LineSegment(App.Vector(58, -80.2, 0), App.Vector(58, -22, 0)),
    Part.ArcOfCircle(Part.Circle(App.Vector(68, -48, 0), App.Vector(0, 0, 1), 1.9), math.radians(0), math.radians(180)),
    Part.LineSegment(App.Vector(66.1, -48, 0), App.Vector(66.1, -88, 0)),
    Part.ArcOfCircle(Part.Circle(App.Vector(68, -88, 0), App.Vector(0, 0, 1), 1.9), math.radians(180), math.radians(360)),
    Part.LineSegment(App.Vector(69.9, -88, 0), App.Vector(69.9, -48, 0)),
    Part.Circle(App.Vector(72.3, -24.5, 0), App.Vector(0, 0, 1), 1.6),
    Part.Circle(App.Vector(68, -17, 0), App.Vector(0, 0, 1), 1.6),
    Part.Circle(App.Vector(63.6, -24.5, 0), App.Vector(0, 0, 1), 1.6),
], False)
sketch6.addConstraint([
    Sketcher.Constraint("Tangent", 0, 1, 1, 1),
    Sketcher.Constraint("Coincident", 1, 2, 2, 2),
    Sketcher.Constraint("Coincident", 2, 1, 3, 1),
    Sketcher.Constraint("Tangent", 3, 2, 0, 2),
    Sketcher.Constraint("Tangent", 4, 2, 5, 1),
    Sketcher.Constraint("Tangent", 5, 2, 6, 1),
    Sketcher.Constraint("Tangent", 6, 2, 7, 1),
    Sketcher.Constraint("Tangent", 7, 2, 4, 1),
    Sketcher.Constraint("Vertical", 1),
    Sketcher.Constraint("Vertical", 3),
    Sketcher.Constraint("Vertical", 5),
    Sketcher.Constraint("Vertical", 7),
    Sketcher.Constraint("Coincident", 6, 3, 2, 3),
    Sketcher.Constraint("Equal", 8, 9),
    Sketcher.Constraint("Equal", 9, 10),
    Sketcher.Constraint("Horizontal", 8, 3, 10, 3),
    Sketcher.Constraint("Horizontal", 1, 2, 2, 1),
    Sketcher.Constraint("Vertical", 6, 3, 9, 3),
    Sketcher.Constraint("Radius", 0, 10.0),
    Sketcher.Constraint("Diameter", 8, 3.2),
    Sketcher.Constraint("Radius", 2, 12.7),
    Sketcher.Constraint("Radius", 4, 1.9),
    Sketcher.Constraint("DistanceY", 5, 2, 5, 1, 40.0),
    Sketcher.Constraint("DistanceY", 0, 3, -1, 1, 22.0),
    Sketcher.Constraint("DistanceY", 2, 3, -1, 1, 88.0),
    Sketcher.Constraint("DistanceY", 9, 3, -1, 1, 17.0),
    Sketcher.Constraint("DistanceY", 8, 3, -1, 1, 24.5),
    Sketcher.Constraint("DistanceX", -1, 1, 0, 3, 67.98),
    Sketcher.Constraint("DistanceX", -1, 1, 8, 3, 72.310127),
    Sketcher.Constraint("DistanceX", -1, 1, 10, 3, 63.649873),
])
sketch6.setExpression("Constraints[18]", "Params.sketch6_radius")
sketch6.setExpression("Constraints[19]", "Params.sketch6_diameter")
sketch6.setExpression("Constraints[20]", "Params.sketch6_radius2")
sketch6.setExpression("Constraints[21]", "Params.sketch6_radius3")
sketch6.setExpression("Constraints[22]", "Params.sketch6_height")
pad4 = body3.newObject("PartDesign::Pad", "Pad003")
pad4.Profile = sketch6
pad4.setExpression("Length", "Params.pad4_length")
pad4.Reversed = True

sketch7 = body3.newObject("Sketcher::SketchObject", "Sketch006")
sketch7.AttachmentSupport = (doc.getObject("XZ_Plane002"), [""])
sketch7.MapMode = "FlatFace"
sketch7.AttachmentOffset = App.Placement(App.Vector(0, 0, 3), App.Rotation())
sketch7.addGeometry([
    Part.LineSegment(App.Vector(77, -88, 0), App.Vector(77, -48, 0)),
    Part.ArcOfCircle(Part.Circle(App.Vector(68, -48, 0), App.Vector(0, 0, 1), 9), math.radians(0), math.radians(180)),
    Part.LineSegment(App.Vector(59, -48, 0), App.Vector(59, -88, 0)),
    Part.ArcOfCircle(Part.Circle(App.Vector(68, -88, 0), App.Vector(0, 0, 1), 9), math.radians(180), math.radians(360)),
], False)
sketch7.addConstraint([
    Sketcher.Constraint("Tangent", 0, 2, 1, 1),
    Sketcher.Constraint("Tangent", 1, 2, 2, 1),
    Sketcher.Constraint("Tangent", 2, 2, 3, 1),
    Sketcher.Constraint("Tangent", 3, 2, 0, 1),
    Sketcher.Constraint("Vertical", 0),
    Sketcher.Constraint("Vertical", 2),
    Sketcher.Constraint("Radius", 1, 9.0),
    Sketcher.Constraint("DistanceY", 0, 1, 0, 2, 40.0),
    Sketcher.Constraint("DistanceY", 1, 3, -1, 1, 48.0),
    Sketcher.Constraint("DistanceX", -1, 1, 1, 3, 67.98),
])
sketch7.setExpression("Constraints[6]", "Params.sketch7_radius")
sketch7.setExpression("Constraints[7]", "Params.sketch7_height")
pocket3 = body3.newObject("PartDesign::Pocket", "Pocket002")
pocket3.Profile = sketch7
pocket3.setExpression("Length", "Params.pocket3_length")
doc.recompute()

fillet3 = body3.newObject("PartDesign::Fillet", "Fillet002")
fillet3.Base = (pocket3, edges_at(pocket3, [(77.98, -1.5, -80.171), (57.98, -1.5, -80.171)]))
fillet3.setExpression("Radius", "Params.fillet3_radius")

doc.recompute()
